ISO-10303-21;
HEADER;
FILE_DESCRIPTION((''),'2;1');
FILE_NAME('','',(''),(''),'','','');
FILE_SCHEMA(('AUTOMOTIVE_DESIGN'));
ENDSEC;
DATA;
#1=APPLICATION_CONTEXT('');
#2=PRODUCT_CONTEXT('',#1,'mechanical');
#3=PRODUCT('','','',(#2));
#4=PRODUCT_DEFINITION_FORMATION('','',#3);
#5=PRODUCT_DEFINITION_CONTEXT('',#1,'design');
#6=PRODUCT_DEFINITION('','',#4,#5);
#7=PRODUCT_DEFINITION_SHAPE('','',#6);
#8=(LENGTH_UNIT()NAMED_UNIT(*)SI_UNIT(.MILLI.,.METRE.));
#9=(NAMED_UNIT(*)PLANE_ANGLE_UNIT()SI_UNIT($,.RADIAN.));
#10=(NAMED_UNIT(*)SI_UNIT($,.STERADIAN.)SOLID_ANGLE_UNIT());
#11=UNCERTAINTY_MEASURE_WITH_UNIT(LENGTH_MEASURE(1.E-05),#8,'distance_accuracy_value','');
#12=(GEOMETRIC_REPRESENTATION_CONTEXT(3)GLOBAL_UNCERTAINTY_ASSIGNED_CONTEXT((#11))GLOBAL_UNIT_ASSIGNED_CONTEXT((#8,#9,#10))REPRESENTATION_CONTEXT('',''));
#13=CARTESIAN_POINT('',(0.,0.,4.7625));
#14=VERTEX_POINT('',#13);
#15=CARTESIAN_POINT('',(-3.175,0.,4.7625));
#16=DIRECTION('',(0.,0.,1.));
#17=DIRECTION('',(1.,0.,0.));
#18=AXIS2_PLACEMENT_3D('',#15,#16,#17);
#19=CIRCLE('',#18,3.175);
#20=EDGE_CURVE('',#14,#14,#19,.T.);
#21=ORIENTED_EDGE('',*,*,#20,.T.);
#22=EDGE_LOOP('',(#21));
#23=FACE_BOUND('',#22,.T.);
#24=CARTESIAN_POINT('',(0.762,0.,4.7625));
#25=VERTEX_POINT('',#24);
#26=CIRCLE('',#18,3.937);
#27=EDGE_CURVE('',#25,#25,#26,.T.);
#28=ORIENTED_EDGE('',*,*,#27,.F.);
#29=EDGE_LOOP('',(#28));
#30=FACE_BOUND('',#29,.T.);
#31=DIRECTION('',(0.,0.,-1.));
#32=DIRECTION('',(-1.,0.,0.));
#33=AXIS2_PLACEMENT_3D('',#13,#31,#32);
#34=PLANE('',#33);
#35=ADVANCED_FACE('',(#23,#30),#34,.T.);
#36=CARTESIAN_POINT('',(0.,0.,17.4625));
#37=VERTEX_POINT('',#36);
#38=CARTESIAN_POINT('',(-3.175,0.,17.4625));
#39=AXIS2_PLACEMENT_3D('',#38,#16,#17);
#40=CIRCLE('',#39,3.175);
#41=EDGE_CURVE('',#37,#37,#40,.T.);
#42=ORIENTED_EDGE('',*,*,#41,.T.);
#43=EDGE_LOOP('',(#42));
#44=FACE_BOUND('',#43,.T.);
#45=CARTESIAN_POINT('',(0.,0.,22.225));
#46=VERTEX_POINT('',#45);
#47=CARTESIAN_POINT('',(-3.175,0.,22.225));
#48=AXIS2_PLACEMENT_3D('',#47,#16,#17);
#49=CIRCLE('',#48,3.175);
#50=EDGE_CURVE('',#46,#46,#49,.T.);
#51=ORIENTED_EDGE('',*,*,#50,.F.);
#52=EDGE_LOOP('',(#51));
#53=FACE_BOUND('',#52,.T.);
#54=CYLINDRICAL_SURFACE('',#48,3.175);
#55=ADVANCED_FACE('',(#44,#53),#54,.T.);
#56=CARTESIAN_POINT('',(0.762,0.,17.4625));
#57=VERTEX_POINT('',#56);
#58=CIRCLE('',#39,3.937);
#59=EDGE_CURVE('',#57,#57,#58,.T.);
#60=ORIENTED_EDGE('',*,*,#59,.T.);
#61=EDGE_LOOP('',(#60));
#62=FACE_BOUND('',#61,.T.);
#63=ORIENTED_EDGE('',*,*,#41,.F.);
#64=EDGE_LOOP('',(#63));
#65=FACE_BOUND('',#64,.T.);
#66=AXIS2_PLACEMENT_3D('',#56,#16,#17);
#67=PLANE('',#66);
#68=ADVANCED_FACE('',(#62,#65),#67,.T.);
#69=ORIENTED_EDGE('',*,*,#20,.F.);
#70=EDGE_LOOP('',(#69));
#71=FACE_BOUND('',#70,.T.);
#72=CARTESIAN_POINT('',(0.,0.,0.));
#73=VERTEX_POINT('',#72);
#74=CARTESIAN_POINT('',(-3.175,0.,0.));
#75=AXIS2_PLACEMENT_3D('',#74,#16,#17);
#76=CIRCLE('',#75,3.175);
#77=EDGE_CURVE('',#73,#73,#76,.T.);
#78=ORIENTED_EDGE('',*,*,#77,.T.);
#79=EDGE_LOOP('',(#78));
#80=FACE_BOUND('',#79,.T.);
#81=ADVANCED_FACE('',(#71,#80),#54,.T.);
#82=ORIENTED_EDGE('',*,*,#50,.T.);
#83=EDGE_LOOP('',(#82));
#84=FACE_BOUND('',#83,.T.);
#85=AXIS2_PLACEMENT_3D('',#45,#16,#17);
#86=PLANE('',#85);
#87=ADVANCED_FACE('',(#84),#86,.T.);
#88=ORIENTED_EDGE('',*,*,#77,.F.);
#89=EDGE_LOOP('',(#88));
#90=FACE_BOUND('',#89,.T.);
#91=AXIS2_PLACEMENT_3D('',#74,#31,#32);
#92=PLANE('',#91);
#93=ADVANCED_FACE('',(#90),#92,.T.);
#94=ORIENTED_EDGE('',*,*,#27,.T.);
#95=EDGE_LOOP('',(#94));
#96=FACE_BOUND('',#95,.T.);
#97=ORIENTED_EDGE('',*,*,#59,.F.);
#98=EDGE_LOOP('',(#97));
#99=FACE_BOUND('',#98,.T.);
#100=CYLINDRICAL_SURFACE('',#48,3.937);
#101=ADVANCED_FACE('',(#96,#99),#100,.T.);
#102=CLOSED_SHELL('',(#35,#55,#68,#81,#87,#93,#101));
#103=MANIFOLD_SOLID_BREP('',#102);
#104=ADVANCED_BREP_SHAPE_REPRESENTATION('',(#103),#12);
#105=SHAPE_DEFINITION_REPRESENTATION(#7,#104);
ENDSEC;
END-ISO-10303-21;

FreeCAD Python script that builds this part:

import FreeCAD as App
import Part
import Sketcher

V = App.Vector
Q = App.Units.Quantity

doc = App.newDocument("Part")
params = doc.addObject("Spreadsheet::Sheet", "Params")
for row, (alias, value) in enumerate([
    ("sketch1_height", "0.5 in"),
    ("sketch1_width", "0.03 in"),
    ("sketch1_width2", "0.125 in"),
    ("sketch1_height2", "0.1875 in"),
    ("revolution_angle", "360 deg"),
], start=1):
    params.set(f"A{row}", alias)
    params.set(f"B{row}", "=" + value)
    params.setAlias(f"B{row}", alias)

body = doc.addObject("PartDesign::Body", "Body")

sketch1 = body.newObject("Sketcher::SketchObject", "Sketch")
sketch1.AttachmentSupport = (doc.getObject("XZ_Plane"), [""])
sketch1.MapMode = "FlatFace"
sketch1.addGeometry([
    Part.LineSegment(V(0, 4.8, 0), V(0, 0, 0)),
    Part.LineSegment(V(0, 0, 0), V(-3.2, 0, 0)),
    Part.LineSegment(V(-3.2, 0, 0), V(-3.2, 22.2, 0)),
    Part.LineSegment(V(-3.2, 22.2, 0), V(0, 22.2, 0)),
    Part.LineSegment(V(0, 22.2, 0), V(0, 17.5, 0)),
    Part.LineSegment(V(0, 17.5, 0), V(0.8, 17.5, 0)),
    Part.LineSegment(V(0.8, 17.5, 0), V(0.8, 4.8, 0)),
    Part.LineSegment(V(0.8, 4.8, 0), V(0, 4.8, 0)),
], False)
sketch1.addGeometry(Part.LineSegment(V(-3.2, 22.2, 0), V(-3.2, 0, 0)), True)
sketch1.addConstraint([
    Sketcher.Constraint("Coincident", 0, 2, 1, 1),
    Sketcher.Constraint("Coincident", 1, 2, 2, 1),
    Sketcher.Constraint("Coincident", 2, 2, 3, 1),
    Sketcher.Constraint("Coincident", 3, 2, 4, 1),
    Sketcher.Constraint("Coincident", 4, 2, 5, 1),
    Sketcher.Constraint("Coincident", 5, 2, 6, 1),
    Sketcher.Constraint("Coincident", 6, 2, 7, 1),
    Sketcher.Constraint("Coincident", 7, 2, 0, 1),
    Sketcher.Constraint("Vertical", 0),
    Sketcher.Constraint("Horizontal", 1),
    Sketcher.Constraint("Vertical", 2),
    Sketcher.Constraint("Horizontal", 3),
    Sketcher.Constraint("Vertical", 4),
    Sketcher.Constraint("Horizontal", 5),
    Sketcher.Constraint("Vertical", 6),
    Sketcher.Constraint("Horizontal", 7),
    Sketcher.Constraint("Vertical", 8),
    Sketcher.Constraint("Coincident", 0, 2, -1, 1),
    Sketcher.Constraint("Coincident", 8, 1, 2, 2),
    Sketcher.Constraint("PointOnObject", 3, 2, -2),
    Sketcher.Constraint("PointOnObject", 8, 2, -1),
    Sketcher.Constraint("Equal", 0, 4),
    Sketcher.Constraint("DistanceY", 6, 2, 6, 1, Q("0.5 in")),
    Sketcher.Constraint("DistanceX", 5, 1, 5, 2, Q("0.03 in")),
    Sketcher.Constraint("DistanceX", 1, 2, 1, 1, Q("0.125 in")),
    Sketcher.Constraint("DistanceY", 0, 2, 0, 1, Q("0.1875 in")),
])
sketch1.setExpression("Constraints[22]", "Params.sketch1_height")
sketch1.setExpression("Constraints[23]", "Params.sketch1_width")
sketch1.setExpression("Constraints[24]", "Params.sketch1_width2")
sketch1.setExpression("Constraints[25]", "Params.sketch1_height2")
revolution = body.newObject("PartDesign::Revolution", "Revolution")
revolution.Profile = sketch1
revolution.ReferenceAxis = (sketch1, ["Axis0"])
revolution.setExpression("Angle", "Params.revolution_angle")

doc.recompute()
